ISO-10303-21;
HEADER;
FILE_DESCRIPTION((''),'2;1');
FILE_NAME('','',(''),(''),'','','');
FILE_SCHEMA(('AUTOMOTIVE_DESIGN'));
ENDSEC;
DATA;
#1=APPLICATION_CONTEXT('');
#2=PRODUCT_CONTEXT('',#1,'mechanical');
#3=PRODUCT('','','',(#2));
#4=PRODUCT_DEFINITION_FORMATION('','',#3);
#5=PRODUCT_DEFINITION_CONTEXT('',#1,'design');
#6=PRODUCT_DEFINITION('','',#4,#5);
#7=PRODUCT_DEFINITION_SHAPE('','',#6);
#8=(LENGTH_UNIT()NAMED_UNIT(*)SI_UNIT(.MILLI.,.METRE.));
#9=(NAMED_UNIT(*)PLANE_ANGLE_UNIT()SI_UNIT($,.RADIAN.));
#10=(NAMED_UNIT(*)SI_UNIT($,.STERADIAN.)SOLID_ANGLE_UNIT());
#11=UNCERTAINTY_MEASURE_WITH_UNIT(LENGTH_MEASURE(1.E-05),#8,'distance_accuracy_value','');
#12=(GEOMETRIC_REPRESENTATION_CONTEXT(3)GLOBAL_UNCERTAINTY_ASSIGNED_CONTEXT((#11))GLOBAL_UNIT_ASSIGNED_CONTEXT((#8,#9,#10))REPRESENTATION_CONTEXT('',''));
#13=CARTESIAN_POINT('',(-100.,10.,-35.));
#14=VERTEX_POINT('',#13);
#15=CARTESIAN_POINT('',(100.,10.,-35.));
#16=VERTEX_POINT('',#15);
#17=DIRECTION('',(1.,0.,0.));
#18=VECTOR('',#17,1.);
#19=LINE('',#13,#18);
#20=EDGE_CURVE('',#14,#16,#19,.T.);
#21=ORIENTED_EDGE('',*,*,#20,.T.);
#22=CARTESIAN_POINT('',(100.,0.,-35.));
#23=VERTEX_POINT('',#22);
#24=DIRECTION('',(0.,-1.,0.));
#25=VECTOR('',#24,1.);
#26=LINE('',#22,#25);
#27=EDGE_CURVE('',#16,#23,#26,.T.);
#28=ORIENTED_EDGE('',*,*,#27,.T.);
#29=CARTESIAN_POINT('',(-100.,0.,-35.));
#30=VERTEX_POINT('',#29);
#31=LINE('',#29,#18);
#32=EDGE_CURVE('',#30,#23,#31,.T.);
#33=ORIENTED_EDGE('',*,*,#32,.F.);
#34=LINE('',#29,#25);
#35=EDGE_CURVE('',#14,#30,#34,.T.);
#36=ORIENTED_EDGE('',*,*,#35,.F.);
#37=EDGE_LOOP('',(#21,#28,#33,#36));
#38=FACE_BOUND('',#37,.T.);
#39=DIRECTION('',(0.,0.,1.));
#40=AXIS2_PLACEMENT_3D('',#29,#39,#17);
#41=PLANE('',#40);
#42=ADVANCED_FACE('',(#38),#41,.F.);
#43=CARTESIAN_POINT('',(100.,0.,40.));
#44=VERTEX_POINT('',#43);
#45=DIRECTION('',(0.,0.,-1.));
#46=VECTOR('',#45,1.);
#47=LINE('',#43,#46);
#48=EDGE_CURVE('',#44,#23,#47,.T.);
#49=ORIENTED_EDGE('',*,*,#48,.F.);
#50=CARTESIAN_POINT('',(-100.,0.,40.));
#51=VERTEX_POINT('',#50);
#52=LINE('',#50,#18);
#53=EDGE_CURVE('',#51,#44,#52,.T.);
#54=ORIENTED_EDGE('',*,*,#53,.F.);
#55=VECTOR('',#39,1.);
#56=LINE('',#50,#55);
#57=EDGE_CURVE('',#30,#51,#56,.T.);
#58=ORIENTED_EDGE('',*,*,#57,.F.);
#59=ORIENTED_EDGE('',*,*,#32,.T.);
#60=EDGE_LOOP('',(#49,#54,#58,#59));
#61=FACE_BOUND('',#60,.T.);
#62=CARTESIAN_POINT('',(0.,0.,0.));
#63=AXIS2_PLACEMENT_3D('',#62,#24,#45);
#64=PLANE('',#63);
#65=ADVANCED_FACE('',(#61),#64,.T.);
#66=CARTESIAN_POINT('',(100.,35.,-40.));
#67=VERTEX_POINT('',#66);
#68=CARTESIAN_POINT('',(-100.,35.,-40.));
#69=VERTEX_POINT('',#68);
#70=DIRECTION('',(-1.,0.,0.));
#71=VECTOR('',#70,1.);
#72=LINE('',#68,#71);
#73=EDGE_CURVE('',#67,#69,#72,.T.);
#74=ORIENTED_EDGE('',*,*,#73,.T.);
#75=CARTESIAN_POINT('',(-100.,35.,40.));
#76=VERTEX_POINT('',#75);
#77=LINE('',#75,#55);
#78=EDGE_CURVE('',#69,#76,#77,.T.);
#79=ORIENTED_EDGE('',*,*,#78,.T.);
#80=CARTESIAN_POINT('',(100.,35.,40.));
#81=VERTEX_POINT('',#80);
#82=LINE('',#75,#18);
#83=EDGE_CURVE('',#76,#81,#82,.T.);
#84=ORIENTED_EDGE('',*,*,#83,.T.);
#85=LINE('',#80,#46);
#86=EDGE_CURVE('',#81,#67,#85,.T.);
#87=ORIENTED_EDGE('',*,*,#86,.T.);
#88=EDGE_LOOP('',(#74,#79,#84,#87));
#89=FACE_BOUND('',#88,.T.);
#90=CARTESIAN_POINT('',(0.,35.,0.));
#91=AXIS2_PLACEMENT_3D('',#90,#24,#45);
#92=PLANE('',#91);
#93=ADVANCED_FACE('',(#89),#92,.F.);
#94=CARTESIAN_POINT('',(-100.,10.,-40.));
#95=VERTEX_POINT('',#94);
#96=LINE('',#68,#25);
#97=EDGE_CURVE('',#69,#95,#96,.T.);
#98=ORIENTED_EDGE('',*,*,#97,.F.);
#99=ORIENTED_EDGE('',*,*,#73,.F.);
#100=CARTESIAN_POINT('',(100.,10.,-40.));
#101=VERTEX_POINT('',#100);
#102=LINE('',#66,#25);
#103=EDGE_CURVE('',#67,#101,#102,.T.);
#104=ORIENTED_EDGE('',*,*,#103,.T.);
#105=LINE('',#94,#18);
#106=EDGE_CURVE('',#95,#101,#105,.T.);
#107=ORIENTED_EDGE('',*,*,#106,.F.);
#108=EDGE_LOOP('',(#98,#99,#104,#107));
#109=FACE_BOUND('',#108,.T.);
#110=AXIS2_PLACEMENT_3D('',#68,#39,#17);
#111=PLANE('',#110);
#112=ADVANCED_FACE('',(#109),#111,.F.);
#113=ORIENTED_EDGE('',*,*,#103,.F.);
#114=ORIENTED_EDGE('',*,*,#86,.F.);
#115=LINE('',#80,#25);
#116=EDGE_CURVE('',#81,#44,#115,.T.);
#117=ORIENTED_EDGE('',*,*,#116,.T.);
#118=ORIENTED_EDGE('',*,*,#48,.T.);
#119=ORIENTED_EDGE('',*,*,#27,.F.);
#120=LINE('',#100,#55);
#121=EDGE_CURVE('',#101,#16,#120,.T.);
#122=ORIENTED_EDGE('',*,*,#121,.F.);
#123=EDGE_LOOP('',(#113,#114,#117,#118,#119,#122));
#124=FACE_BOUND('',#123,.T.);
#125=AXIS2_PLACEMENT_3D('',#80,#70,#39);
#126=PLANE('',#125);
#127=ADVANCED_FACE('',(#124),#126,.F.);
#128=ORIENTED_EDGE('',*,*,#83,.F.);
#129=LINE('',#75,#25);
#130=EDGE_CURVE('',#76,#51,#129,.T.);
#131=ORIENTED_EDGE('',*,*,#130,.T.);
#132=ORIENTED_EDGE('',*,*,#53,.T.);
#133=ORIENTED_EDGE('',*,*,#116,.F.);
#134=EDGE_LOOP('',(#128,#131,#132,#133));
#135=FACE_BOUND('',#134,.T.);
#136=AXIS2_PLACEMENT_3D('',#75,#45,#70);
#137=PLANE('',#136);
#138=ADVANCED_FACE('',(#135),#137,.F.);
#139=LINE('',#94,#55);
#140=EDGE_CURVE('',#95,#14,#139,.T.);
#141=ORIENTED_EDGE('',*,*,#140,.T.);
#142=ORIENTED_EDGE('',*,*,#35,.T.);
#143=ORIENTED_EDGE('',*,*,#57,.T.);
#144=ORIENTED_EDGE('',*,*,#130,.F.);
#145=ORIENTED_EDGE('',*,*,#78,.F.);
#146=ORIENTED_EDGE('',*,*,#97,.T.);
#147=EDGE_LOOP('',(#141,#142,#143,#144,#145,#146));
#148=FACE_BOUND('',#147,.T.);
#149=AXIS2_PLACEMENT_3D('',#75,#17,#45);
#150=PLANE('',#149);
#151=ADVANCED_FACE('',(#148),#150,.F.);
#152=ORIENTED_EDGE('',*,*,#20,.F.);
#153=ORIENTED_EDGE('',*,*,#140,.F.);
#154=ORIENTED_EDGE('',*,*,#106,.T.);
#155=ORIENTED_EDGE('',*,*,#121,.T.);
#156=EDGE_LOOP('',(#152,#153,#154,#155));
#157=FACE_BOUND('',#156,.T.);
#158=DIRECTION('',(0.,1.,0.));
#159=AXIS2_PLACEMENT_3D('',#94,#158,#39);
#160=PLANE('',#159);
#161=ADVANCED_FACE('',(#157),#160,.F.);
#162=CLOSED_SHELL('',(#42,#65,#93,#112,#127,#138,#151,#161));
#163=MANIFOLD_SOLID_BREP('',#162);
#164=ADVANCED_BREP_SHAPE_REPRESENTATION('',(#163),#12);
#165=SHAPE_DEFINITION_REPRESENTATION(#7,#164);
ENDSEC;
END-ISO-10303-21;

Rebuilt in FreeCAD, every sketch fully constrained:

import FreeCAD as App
import Part
import Sketcher
Q = App.Units.Quantity


def add_polygon(sketch, points):
    """Adds a closed chain of lines whose ends are joined by coincident constraints."""
    first, n = sketch.GeometryCount, len(points)
    for a, b in zip(points, points[1:] + points[:1]):
        sketch.addGeometry(Part.LineSegment(App.Vector(*a, 0), App.Vector(*b, 0)), False)
    for i in range(n):
        sketch.addConstraint(Sketcher.Constraint("Coincident", first + i, 2, first + (i + 1) % n, 1))

doc = App.newDocument("Part")
body = doc.addObject("PartDesign::Body", "Body")

sketch1 = body.newObject("Sketcher::SketchObject", "Sketch")
sketch1.AttachmentSupport = (doc.getObject("XZ_Plane"), [""])
sketch1.MapMode = "FlatFace"
add_polygon(sketch1, [(-100, -40), (-100, 40), (100, 40), (100, -40)])
sketch1.addConstraint(Sketcher.Constraint("Vertical", 0))
sketch1.addConstraint(Sketcher.Constraint("Horizontal", 1))
sketch1.addConstraint(Sketcher.Constraint("Vertical", 2))
sketch1.addConstraint(Sketcher.Constraint("Horizontal", 3))
sketch1.addConstraint(Sketcher.Constraint("Symmetric", 0, 2, 2, 2, -1, 1))
sketch1.addConstraint(Sketcher.Constraint("DistanceX", 1, 1, 1, 2, Q("200 mm")))
sketch1.addConstraint(Sketcher.Constraint("DistanceY", 0, 1, 0, 2, Q("80 mm")))
pad1 = body.newObject("PartDesign::Pad", "Pad")
pad1.Profile = sketch1
pad1.Length = 35
pad1.Reversed = True

sketch2 = body.newObject("Sketcher::SketchObject", "Sketch001")
sketch2.AttachmentSupport = (doc.getObject("YZ_Plane"), [""])
sketch2.MapMode = "FlatFace"
sketch2.AttachmentOffset = App.Placement(App.Vector(0, 0, 100), App.Rotation())
add_polygon(sketch2, [(10, -35), (0, -35), (0, -40), (10, -40)])
sketch2.addConstraint(Sketcher.Constraint("Horizontal", 0))
sketch2.addConstraint(Sketcher.Constraint("Vertical", 1))
sketch2.addConstraint(Sketcher.Constraint("Horizontal", 2))
sketch2.addConstraint(Sketcher.Constraint("Vertical", 3))
sketch2.addConstraint(Sketcher.Constraint("PointOnObject", 0, 2, -2))
sketch2.addConstraint(Sketcher.Constraint("DistanceX", 0, 2, 0, 1, Q("10 mm")))
sketch2.addConstraint(Sketcher.Constraint("DistanceY", 1, 2, 1, 1, Q("5 mm")))
sketch2.addConstraint(Sketcher.Constraint("DistanceY", 0, 2, -1, 1, Q("35 mm")))
pocket1 = body.newObject("PartDesign::Pocket", "Pocket")
pocket1.Profile = sketch2
pocket1.Type = "ThroughAll"

doc.recompute()
